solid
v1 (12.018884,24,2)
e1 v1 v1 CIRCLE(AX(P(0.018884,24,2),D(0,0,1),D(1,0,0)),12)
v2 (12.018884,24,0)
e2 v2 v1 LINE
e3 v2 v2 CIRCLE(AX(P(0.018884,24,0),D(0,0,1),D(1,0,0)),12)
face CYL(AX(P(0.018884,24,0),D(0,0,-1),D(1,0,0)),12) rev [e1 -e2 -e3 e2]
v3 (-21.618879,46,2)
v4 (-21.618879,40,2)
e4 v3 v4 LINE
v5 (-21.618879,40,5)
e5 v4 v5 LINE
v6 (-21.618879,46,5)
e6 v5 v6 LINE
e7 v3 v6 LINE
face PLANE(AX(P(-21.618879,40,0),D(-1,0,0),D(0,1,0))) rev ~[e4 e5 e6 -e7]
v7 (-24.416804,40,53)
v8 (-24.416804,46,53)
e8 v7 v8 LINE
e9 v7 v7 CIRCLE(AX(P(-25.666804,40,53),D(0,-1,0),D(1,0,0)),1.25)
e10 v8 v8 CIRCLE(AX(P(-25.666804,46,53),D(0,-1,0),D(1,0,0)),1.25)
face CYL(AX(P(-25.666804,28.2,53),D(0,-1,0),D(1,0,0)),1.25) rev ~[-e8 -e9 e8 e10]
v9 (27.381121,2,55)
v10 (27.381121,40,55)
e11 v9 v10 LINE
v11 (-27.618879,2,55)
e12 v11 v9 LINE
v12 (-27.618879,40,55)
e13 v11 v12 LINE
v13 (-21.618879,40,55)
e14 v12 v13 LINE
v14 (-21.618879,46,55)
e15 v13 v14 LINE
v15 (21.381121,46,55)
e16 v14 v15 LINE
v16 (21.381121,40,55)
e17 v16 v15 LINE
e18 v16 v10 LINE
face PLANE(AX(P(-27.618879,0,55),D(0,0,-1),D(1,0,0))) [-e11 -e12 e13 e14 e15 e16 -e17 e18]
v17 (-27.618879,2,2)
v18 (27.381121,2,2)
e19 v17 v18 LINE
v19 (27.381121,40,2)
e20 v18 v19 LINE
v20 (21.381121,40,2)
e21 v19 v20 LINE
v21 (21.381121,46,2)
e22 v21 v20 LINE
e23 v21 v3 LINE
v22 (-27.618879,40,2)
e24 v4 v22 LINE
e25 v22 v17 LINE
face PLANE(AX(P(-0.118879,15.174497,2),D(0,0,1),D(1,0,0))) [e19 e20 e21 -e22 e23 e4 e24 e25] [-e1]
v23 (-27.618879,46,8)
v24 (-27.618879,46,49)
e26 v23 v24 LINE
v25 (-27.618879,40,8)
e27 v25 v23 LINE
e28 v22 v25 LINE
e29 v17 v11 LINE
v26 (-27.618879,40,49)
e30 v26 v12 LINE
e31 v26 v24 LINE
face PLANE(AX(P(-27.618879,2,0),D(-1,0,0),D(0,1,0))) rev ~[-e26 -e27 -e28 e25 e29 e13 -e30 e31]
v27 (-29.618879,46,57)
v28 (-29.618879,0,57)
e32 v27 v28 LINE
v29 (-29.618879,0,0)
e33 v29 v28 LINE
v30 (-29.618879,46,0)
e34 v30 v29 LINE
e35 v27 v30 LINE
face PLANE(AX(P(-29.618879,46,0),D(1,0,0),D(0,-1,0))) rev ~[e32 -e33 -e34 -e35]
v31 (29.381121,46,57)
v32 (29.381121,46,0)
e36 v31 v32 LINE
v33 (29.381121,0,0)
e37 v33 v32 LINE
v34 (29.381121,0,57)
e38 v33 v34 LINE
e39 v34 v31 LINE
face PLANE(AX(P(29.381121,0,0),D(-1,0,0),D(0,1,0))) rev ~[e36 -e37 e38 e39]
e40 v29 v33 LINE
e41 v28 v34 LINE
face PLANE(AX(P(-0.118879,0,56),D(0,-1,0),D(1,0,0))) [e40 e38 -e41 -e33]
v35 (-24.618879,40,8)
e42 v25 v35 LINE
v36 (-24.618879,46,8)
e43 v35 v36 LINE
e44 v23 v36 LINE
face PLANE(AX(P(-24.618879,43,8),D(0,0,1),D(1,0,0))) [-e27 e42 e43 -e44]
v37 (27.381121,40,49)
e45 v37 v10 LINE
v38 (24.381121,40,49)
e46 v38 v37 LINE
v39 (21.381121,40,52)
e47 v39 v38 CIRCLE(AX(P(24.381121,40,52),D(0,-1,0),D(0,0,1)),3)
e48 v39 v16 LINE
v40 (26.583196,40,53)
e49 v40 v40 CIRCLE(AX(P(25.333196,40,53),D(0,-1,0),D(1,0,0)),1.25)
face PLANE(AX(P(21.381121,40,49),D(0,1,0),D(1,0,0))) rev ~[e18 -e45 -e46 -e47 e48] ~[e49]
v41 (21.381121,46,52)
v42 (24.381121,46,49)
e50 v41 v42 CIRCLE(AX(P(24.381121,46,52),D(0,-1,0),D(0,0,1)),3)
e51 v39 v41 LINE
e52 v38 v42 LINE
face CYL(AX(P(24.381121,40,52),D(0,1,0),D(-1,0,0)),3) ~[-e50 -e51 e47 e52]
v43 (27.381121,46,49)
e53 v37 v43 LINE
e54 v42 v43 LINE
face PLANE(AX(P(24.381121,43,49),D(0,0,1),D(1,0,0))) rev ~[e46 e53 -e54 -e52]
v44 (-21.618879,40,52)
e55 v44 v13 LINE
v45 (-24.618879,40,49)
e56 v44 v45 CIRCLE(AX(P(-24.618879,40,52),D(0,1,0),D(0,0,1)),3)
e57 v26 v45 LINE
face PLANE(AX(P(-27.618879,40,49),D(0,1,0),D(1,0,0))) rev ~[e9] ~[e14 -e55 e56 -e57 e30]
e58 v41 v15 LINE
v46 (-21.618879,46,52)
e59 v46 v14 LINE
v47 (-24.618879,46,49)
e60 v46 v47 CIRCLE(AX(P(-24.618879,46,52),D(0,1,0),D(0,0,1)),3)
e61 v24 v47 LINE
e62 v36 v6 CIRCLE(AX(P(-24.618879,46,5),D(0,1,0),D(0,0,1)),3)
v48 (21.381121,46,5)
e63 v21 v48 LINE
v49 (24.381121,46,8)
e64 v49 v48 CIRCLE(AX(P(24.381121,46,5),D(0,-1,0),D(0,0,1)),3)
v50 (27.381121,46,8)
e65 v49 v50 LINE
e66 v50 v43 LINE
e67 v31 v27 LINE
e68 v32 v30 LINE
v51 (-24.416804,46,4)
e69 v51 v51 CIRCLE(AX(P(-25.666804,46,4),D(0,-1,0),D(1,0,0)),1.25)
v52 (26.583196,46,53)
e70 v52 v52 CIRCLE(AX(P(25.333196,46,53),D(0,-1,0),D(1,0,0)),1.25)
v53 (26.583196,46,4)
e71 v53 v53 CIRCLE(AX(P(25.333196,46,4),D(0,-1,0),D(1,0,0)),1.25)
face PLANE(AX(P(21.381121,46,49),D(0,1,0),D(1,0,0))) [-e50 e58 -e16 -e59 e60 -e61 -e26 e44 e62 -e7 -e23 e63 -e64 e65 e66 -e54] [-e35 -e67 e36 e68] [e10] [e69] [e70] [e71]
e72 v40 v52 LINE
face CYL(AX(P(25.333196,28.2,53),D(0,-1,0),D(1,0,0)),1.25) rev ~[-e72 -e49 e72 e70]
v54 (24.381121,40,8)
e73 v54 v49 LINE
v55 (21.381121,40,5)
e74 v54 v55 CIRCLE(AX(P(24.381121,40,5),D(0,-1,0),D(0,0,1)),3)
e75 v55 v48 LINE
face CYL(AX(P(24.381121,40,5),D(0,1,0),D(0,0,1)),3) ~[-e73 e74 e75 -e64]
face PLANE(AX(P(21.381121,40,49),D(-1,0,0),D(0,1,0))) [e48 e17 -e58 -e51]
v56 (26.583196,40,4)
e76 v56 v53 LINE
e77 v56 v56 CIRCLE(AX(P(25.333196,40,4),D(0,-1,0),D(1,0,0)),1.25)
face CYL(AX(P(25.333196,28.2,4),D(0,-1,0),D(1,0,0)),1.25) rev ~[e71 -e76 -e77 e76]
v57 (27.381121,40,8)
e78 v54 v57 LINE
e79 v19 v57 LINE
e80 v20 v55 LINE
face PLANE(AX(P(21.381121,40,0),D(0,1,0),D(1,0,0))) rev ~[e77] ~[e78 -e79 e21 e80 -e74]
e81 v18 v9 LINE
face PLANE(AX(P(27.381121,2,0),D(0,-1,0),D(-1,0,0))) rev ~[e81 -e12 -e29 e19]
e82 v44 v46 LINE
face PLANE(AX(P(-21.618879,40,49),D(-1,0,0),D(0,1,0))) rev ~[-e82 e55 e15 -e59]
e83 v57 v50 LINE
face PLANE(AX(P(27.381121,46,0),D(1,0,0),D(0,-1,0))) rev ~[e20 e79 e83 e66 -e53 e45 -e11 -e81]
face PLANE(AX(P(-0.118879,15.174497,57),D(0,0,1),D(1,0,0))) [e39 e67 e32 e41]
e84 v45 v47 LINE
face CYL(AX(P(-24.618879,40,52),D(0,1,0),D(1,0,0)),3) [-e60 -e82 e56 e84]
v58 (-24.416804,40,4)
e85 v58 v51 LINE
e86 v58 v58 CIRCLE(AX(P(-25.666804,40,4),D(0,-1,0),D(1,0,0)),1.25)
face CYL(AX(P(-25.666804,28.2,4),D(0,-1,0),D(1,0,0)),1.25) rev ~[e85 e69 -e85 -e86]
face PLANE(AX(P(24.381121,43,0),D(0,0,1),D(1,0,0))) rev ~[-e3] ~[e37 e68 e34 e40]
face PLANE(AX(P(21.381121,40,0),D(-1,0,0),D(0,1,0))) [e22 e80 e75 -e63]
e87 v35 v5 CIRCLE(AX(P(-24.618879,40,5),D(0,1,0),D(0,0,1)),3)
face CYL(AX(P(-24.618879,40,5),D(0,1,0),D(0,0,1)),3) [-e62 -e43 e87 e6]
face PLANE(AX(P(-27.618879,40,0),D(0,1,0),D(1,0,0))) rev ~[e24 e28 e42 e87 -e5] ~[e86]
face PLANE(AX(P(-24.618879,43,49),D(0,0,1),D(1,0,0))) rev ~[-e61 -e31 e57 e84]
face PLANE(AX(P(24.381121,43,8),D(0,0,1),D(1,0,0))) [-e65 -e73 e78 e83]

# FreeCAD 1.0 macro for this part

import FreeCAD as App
import Part
import Sketcher
Q = App.Units.Quantity


def edges_at(feature, points):
    """Names of the edges that pass closest to the given points."""
    edges = feature.Shape.Edges
    near = lambda p: min(range(len(edges)), key=lambda i: edges[i].distToShape(Part.Vertex(*p))[0])
    return sorted({f"Edge{near(p) + 1}" for p in points})


def add_polygon(sketch, points):
    """Adds a closed chain of lines whose ends are joined by coincident constraints."""
    first, n = sketch.GeometryCount, len(points)
    for a, b in zip(points, points[1:] + points[:1]):
        sketch.addGeometry(Part.LineSegment(App.Vector(*a, 0), App.Vector(*b, 0)), False)
    for i in range(n):
        sketch.addConstraint(Sketcher.Constraint("Coincident", first + i, 2, first + (i + 1) % n, 1))

doc = App.newDocument("Part")
params = doc.addObject("Spreadsheet::Sheet", "Params")
for row, (alias, value) in enumerate([
    ("sketch1_diameter", "24 mm"),
    ("sketch1_width", "59 mm"),
    ("sketch1_height", "46 mm"),
    ("pad1_length", "2 mm"),
    ("sketch2_width", "2 mm"),
    ("sketch2_width2", "59 mm"),
    ("sketch2_height", "46 mm"),
    ("sketch2_height2", "44 mm"),
    ("pad2_length", "57 mm"),
    ("sketch3_width", "55 mm"),
    ("sketch3_height", "2 mm"),
    ("pad3_length", "46 mm"),
    ("sketch4_width", "6 mm"),
    ("pad4_length", "8 mm"),
    ("sketch5_width", "6 mm"),
    ("pad5_length", "6 mm"),
    ("sketch6_diameter", "2.5 mm"),
    ("pocket1_length", "30.8 mm"),
    ("fillet_radius", "3 mm"),
], start=1):
    params.set(f"A{row}", alias)
    params.set(f"B{row}", "=" + value)
    params.setAlias(f"B{row}", alias)

body = doc.addObject("PartDesign::Body", "Body")

# Sketch on XY plane
sketch1 = body.newObject("Sketcher::SketchObject", "Sketch")
sketch1.AttachmentSupport = (doc.getObject("XY_Plane"), [""])
sketch1.MapMode = "FlatFace"
add_polygon(sketch1, [(-30, 46), (-30, 0), (29, 0), (29, 46)])  # lines 0-3
sketch1.addGeometry(Part.Circle(App.Vector(0, 24, 0), App.Vector(0, 0, 1), 12), False)  # 4
sketch1.addConstraint(Sketcher.Constraint("Vertical", 0))
sketch1.addConstraint(Sketcher.Constraint("Horizontal", 1))
sketch1.addConstraint(Sketcher.Constraint("Vertical", 2))
sketch1.addConstraint(Sketcher.Constraint("Horizontal", 3))
sketch1.addConstraint(Sketcher.Constraint("PointOnObject", 0, 2, -1))
sketch1.addConstraint(Sketcher.Constraint("Diameter", 4, Q("24 mm")))
sketch1.addConstraint(Sketcher.Constraint("DistanceX", 1, 1, 1, 2, Q("59 mm")))
sketch1.addConstraint(Sketcher.Constraint("DistanceY", 0, 2, 0, 1, Q("46 mm")))
sketch1.addConstraint(Sketcher.Constraint("DistanceY", -1, 1, 4, 3, Q("24 mm")))
sketch1.addConstraint(Sketcher.Constraint("DistanceX", 0, 2, -1, 1, Q("29.618879 mm")))
sketch1.addConstraint(Sketcher.Constraint("DistanceX", -1, 1, 4, 3, Q("0.018884 mm")))
sketch1.setExpression("Constraints[9]", "Params.sketch1_diameter")
sketch1.setExpression("Constraints[10]", "Params.sketch1_width")
sketch1.setExpression("Constraints[11]", "Params.sketch1_height")
pad1 = body.newObject("PartDesign::Pad", "Pad")
pad1.Profile = sketch1
pad1.setExpression("Length", "Params.pad1_length")

# Sketch on XY plane
sketch2 = body.newObject("Sketcher::SketchObject", "Sketch001")
sketch2.AttachmentSupport = (doc.getObject("XY_Plane"), [""])
sketch2.MapMode = "FlatFace"
add_polygon(sketch2, [(-27.6, 46), (-29.6, 46), (-29.6, 0), (29.4, 0), (29.4, 46), (27.4, 46), (27.4, 2), (-27.6, 2)])  # lines 0-7
sketch2.addConstraint(Sketcher.Constraint("Horizontal", 0))
sketch2.addConstraint(Sketcher.Constraint("Vertical", 1))
sketch2.addConstraint(Sketcher.Constraint("Horizontal", 2))
sketch2.addConstraint(Sketcher.Constraint("Vertical", 3))
sketch2.addConstraint(Sketcher.Constraint("Horizontal", 4))
sketch2.addConstraint(Sketcher.Constraint("Vertical", 5))
sketch2.addConstraint(Sketcher.Constraint("Horizontal", 6))
sketch2.addConstraint(Sketcher.Constraint("Vertical", 7))
sketch2.addConstraint(Sketcher.Constraint("PointOnObject", 1, 2, -1))
sketch2.addConstraint(Sketcher.Constraint("Horizontal", 0, 2, 3, 2))
sketch2.addConstraint(Sketcher.Constraint("Equal", 0, 4))
sketch2.addConstraint(Sketcher.Constraint("DistanceX", 0, 2, 0, 1, Q("2 mm")))
sketch2.addConstraint(Sketcher.Constraint("DistanceX", 2, 1, 2, 2, Q("59 mm")))
sketch2.addConstraint(Sketcher.Constraint("DistanceY", 1, 2, 1, 1, Q("46 mm")))
sketch2.addConstraint(Sketcher.Constraint("DistanceY", 5, 2, 5, 1, Q("44 mm")))
sketch2.addConstraint(Sketcher.Constraint("DistanceX", 0, 2, -1, 1, Q("29.618879 mm")))
sketch2.setExpression("Constraints[19]", "Params.sketch2_width")
sketch2.setExpression("Constraints[20]", "Params.sketch2_width2")
sketch2.setExpression("Constraints[21]", "Params.sketch2_height")
sketch2.setExpression("Constraints[22]", "Params.sketch2_height2")
pad2 = body.newObject("PartDesign::Pad", "Pad001")
pad2.Profile = sketch2
pad2.setExpression("Length", "Params.pad2_length")

# Sketch on XZ plane
sketch3 = body.newObject("Sketcher::SketchObject", "Sketch002")
sketch3.AttachmentSupport = (doc.getObject("XZ_Plane"), [""])
sketch3.MapMode = "FlatFace"
add_polygon(sketch3, [(-27.6, 57), (-27.6, 55), (27.4, 55), (27.4, 57)])  # lines 0-3
sketch3.addConstraint(Sketcher.Constraint("Vertical", 0))
sketch3.addConstraint(Sketcher.Constraint("Horizontal", 1))
sketch3.addConstraint(Sketcher.Constraint("Vertical", 2))
sketch3.addConstraint(Sketcher.Constraint("Horizontal", 3))
sketch3.addConstraint(Sketcher.Constraint("DistanceX", 1, 1, 1, 2, Q("55 mm")))
sketch3.addConstraint(Sketcher.Constraint("DistanceY", 0, 2, 0, 1, Q("2 mm")))
sketch3.addConstraint(Sketcher.Constraint("DistanceY", -1, 1, 0, 2, Q("55 mm")))
sketch3.addConstraint(Sketcher.Constraint("DistanceX", 0, 2, -1, 1, Q("27.618879 mm")))
sketch3.setExpression("Constraints[8]", "Params.sketch3_width")
sketch3.setExpression("Constraints[9]", "Params.sketch3_height")
pad3 = body.newObject("PartDesign::Pad", "Pad002")
pad3.Profile = sketch3
pad3.setExpression("Length", "Params.pad3_length")
pad3.Reversed = True

# Sketch on XY plane
sketch4 = body.newObject("Sketcher::SketchObject", "Sketch003")
sketch4.AttachmentSupport = (doc.getObject("XY_Plane"), [""])
sketch4.MapMode = "FlatFace"
add_polygon(sketch4, [(21, 46), (21, 40), (27, 40), (27, 46)])  # lines 0-3
add_polygon(sketch4, [(-28, 46), (-28, 40), (-22, 40), (-22, 46)])  # lines 4-7
sketch4.addConstraint(Sketcher.Constraint("Vertical", 0))
sketch4.addConstraint(Sketcher.Constraint("Horizontal", 1))
sketch4.addConstraint(Sketcher.Constraint("Vertical", 2))
sketch4.addConstraint(Sketcher.Constraint("Horizontal", 3))
sketch4.addConstraint(Sketcher.Constraint("Vertical", 4))
sketch4.addConstraint(Sketcher.Constraint("Horizontal", 5))
sketch4.addConstraint(Sketcher.Constraint("Vertical", 6))
sketch4.addConstraint(Sketcher.Constraint("Horizontal", 7))
sketch4.addConstraint(Sketcher.Constraint("Horizontal", 1, 2, 4, 2))
sketch4.addConstraint(Sketcher.Constraint("Horizontal", 3, 2, 6, 2))
sketch4.addConstraint(Sketcher.Constraint("Equal", 3, 5))
sketch4.addConstraint(Sketcher.Constraint("Equal", 7, 0))
sketch4.addConstraint(Sketcher.Constraint("DistanceX", 1, 1, 1, 2, Q("6 mm")))
sketch4.addConstraint(Sketcher.Constraint("DistanceY", -1, 1, 0, 2, Q("40 mm")))
sketch4.addConstraint(Sketcher.Constraint("DistanceX", 4, 2, 0, 2, Q("49 mm")))
sketch4.addConstraint(Sketcher.Constraint("DistanceX", -1, 1, 0, 2, Q("21.381121 mm")))
sketch4.setExpression("Constraints[20]", "Params.sketch4_width")
pad4 = body.newObject("PartDesign::Pad", "Pad003")
pad4.Profile = sketch4
pad4.setExpression("Length", "Params.pad4_length")

# Sketch on XY plane
sketch5 = body.newObject("Sketcher::SketchObject", "Sketch004")
sketch5.AttachmentSupport = (doc.getObject("XY_Plane"), [""])
sketch5.MapMode = "FlatFace"
sketch5.AttachmentOffset = App.Placement(App.Vector(0, 0, 49), App.Rotation())
add_polygon(sketch5, [(21, 46), (21, 40), (27, 40), (27, 46)])  # lines 0-3
add_polygon(sketch5, [(-28, 46), (-28, 40), (-22, 40), (-22, 46)])  # lines 4-7
sketch5.addConstraint(Sketcher.Constraint("Vertical", 0))
sketch5.addConstraint(Sketcher.Constraint("Horizontal", 1))
sketch5.addConstraint(Sketcher.Constraint("Vertical", 2))
sketch5.addConstraint(Sketcher.Constraint("Horizontal", 3))
sketch5.addConstraint(Sketcher.Constraint("Vertical", 4))
sketch5.addConstraint(Sketcher.Constraint("Horizontal", 5))
sketch5.addConstraint(Sketcher.Constraint("Vertical", 6))
sketch5.addConstraint(Sketcher.Constraint("Horizontal", 7))
sketch5.addConstraint(Sketcher.Constraint("Horizontal", 1, 2, 4, 2))
sketch5.addConstraint(Sketcher.Constraint("Horizontal", 3, 2, 6, 2))
sketch5.addConstraint(Sketcher.Constraint("Equal", 3, 5))
sketch5.addConstraint(Sketcher.Constraint("Equal", 7, 0))
sketch5.addConstraint(Sketcher.Constraint("DistanceX", 1, 1, 1, 2, Q("6 mm")))
sketch5.addConstraint(Sketcher.Constraint("DistanceY", -1, 1, 0, 2, Q("40 mm")))
sketch5.addConstraint(Sketcher.Constraint("DistanceX", 4, 2, 0, 2, Q("49 mm")))
sketch5.addConstraint(Sketcher.Constraint("DistanceX", -1, 1, 0, 2, Q("21.381121 mm")))
sketch5.setExpression("Constraints[20]", "Params.sketch5_width")
pad5 = body.newObject("PartDesign::Pad", "Pad004")
pad5.Profile = sketch5
pad5.setExpression("Length", "Params.pad5_length")

# Sketch on XZ plane
sketch6 = body.newObject("Sketcher::SketchObject", "Sketch005")
sketch6.AttachmentSupport = (doc.getObject("XZ_Plane"), [""])
sketch6.MapMode = "FlatFace"
sketch6.AttachmentOffset = App.Placement(App.Vector(0, 0, -28.2), App.Rotation())
sketch6.addGeometry(Part.Circle(App.Vector(25.3, 53, 0), App.Vector(0, 0, 1), 1.2), False)
sketch6.addGeometry(Part.Circle(App.Vector(-25.7, 53, 0), App.Vector(0, 0, 1), 1.2), False)
sketch6.addGeometry(Part.Circle(App.Vector(-25.7, 4, 0), App.Vector(0, 0, 1), 1.2), False)
sketch6.addGeometry(Part.Circle(App.Vector(25.3, 4, 0), App.Vector(0, 0, 1), 1.2), False)
sketch6.addConstraint(Sketcher.Constraint("Equal", 0, 1))
sketch6.addConstraint(Sketcher.Constraint("Equal", 1, 2))
sketch6.addConstraint(Sketcher.Constraint("Equal", 2, 3))
sketch6.addConstraint(Sketcher.Constraint("Horizontal", 0, 3, 1, 3))
sketch6.addConstraint(Sketcher.Constraint("Horizontal", 2, 3, 3, 3))
sketch6.addConstraint(Sketcher.Constraint("Vertical", 1, 3, 2, 3))
sketch6.addConstraint(Sketcher.Constraint("Vertical", 0, 3, 3, 3))
sketch6.addConstraint(Sketcher.Constraint("Diameter", 0, Q("2.5 mm")))
sketch6.addConstraint(Sketcher.Constraint("DistanceY", -1, 1, 0, 3, Q("53 mm")))
sketch6.addConstraint(Sketcher.Constraint("DistanceY", -1, 1, 2, 3, Q("4 mm")))
sketch6.addConstraint(Sketcher.Constraint("DistanceX", 1, 3, 0, 3, Q("51 mm")))
sketch6.addConstraint(Sketcher.Constraint("DistanceX", -1, 1, 0, 3, Q("25.333196 mm")))
sketch6.setExpression("Constraints[7]", "Params.sketch6_diameter")
pocket1 = body.newObject("PartDesign::Pocket", "Pocket")
pocket1.Profile = sketch6
pocket1.setExpression("Length", "Params.pocket1_length")
doc.recompute()

fillet = body.newObject("PartDesign::Fillet", "Fillet")
fillet.Base = (pocket1, edges_at(pocket1, [
    (21.381, 43, 49),
    (-21.619, 43, 49),
    (-21.619, 43, 8),
    (21.381, 43, 8),
]))
fillet.setExpression("Radius", "Params.fillet_radius")

doc.recompute()
